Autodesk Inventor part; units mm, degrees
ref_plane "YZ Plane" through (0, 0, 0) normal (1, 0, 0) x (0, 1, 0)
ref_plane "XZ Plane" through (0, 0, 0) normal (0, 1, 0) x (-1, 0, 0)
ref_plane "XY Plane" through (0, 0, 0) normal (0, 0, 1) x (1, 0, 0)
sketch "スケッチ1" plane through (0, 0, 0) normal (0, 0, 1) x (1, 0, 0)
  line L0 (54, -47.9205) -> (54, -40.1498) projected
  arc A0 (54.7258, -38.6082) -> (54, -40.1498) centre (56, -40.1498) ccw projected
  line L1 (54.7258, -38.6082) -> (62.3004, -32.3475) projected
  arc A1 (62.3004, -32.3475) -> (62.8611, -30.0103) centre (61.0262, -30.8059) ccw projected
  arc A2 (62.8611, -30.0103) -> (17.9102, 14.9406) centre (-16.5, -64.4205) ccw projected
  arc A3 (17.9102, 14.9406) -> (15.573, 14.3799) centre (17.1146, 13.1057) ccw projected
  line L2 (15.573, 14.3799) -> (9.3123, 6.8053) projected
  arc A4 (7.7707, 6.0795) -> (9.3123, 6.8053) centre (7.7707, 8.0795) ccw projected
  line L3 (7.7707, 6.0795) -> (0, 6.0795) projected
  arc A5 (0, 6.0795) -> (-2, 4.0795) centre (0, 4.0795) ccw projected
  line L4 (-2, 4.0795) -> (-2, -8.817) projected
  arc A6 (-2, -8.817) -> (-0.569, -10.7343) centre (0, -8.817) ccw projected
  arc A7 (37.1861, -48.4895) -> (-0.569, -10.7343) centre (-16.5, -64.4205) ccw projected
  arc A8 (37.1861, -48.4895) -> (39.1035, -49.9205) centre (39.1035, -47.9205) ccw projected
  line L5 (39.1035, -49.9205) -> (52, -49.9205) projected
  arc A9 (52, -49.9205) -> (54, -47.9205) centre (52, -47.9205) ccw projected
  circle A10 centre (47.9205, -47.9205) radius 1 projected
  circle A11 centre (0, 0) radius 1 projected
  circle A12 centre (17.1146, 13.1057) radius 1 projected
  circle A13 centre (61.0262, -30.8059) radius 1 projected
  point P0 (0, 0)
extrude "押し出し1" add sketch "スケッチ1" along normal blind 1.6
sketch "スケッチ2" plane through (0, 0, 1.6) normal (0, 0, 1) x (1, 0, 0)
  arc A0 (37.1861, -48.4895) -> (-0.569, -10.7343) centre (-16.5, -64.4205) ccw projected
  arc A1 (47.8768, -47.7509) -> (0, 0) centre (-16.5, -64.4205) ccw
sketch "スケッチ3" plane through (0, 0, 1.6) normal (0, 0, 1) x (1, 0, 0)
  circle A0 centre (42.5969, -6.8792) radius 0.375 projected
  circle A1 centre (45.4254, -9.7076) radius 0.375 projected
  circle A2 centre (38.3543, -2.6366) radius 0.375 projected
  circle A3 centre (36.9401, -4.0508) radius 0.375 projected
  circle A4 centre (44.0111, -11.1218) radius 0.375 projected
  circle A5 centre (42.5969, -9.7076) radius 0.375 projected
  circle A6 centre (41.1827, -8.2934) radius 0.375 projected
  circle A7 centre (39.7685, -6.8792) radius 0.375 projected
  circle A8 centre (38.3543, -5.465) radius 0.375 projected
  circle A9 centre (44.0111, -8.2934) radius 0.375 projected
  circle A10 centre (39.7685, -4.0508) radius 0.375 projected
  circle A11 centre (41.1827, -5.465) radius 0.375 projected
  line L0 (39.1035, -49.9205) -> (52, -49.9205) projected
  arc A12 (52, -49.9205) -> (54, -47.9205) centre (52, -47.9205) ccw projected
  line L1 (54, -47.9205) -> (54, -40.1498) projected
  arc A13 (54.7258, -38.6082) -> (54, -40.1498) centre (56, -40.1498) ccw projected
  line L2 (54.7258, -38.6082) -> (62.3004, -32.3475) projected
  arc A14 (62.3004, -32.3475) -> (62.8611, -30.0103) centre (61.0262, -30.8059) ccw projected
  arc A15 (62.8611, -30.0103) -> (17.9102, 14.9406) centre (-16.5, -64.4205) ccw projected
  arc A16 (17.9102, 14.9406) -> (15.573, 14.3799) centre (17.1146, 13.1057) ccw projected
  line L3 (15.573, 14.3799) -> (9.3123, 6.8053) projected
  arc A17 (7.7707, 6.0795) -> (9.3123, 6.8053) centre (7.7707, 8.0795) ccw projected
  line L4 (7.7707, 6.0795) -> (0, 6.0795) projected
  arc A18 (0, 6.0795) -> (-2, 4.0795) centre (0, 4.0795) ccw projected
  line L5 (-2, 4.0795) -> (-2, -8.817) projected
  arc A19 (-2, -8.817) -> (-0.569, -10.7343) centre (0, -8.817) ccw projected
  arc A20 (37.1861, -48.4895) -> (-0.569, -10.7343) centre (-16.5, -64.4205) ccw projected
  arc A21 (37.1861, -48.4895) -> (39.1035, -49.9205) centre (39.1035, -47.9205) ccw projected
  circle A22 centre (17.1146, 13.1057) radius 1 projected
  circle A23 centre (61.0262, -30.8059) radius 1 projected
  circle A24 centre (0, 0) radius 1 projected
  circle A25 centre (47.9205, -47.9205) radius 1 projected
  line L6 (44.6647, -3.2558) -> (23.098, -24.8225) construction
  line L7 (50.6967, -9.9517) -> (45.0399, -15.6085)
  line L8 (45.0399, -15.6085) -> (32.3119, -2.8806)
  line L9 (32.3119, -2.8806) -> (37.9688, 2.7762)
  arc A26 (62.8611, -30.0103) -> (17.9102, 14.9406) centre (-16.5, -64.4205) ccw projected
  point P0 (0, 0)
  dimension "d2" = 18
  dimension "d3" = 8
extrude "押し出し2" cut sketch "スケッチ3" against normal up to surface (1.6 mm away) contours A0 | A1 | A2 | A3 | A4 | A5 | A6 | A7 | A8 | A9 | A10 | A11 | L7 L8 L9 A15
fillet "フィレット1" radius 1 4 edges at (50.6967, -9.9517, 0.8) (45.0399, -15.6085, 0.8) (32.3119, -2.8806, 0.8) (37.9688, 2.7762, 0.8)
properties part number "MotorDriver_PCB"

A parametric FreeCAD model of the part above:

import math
import FreeCAD as App
import Part
import Sketcher

V = App.Vector
Q = App.Units.Quantity


def edges_at(feature, points):
    """Names of the edges that pass closest to the given points."""
    edges = feature.Shape.Edges
    near = lambda p: min(range(len(edges)), key=lambda i: edges[i].distToShape(Part.Vertex(*p))[0])
    return sorted({f"Edge{near(p) + 1}" for p in points})

doc = App.newDocument("Part")
body = doc.addObject("PartDesign::Body", "Body")

# Sketch on XY plane
sketch1 = body.newObject("Sketcher::SketchObject", "Sketch")
sketch1.AttachmentSupport = (doc.getObject("XY_Plane"), [""])
sketch1.MapMode = "FlatFace"
sketch1.addGeometry([
    Part.ArcOfCircle(Part.Circle(V(52, -47.9205, 0), V(0, 0, 1), 2), math.radians(-90), math.radians(0)),  # 0
    Part.LineSegment(V(54, -47.9205, 0), V(54, -40.1498, 0)),  # 1
    Part.ArcOfCircle(Part.Circle(V(56, -40.1498, 0), V(0, 0, 1), 2.000029), math.radians(129.575224), math.radians(180)),  # 2
    Part.LineSegment(V(54.7258, -38.6082, 0), V(62.3004, -32.3475, 0)),  # 3
    Part.ArcOfCircle(Part.Circle(V(61.0262, -30.8059, 0), V(0, 0, 1), 2.000029), math.radians(-50.424776), math.radians(23.441223)),  # 4
    Part.ArcOfCircle(Part.Circle(V(-16.5, -64.4205, 0), V(0, 0, 1), 86.499977), math.radians(23.441085), math.radians(66.558915)),  # 5
    Part.ArcOfCircle(Part.Circle(V(17.1146, 13.1057, 0), V(0, 0, 1), 1.999959), math.radians(66.558777), math.radians(140.424776)),  # 6
    Part.LineSegment(V(15.573, 14.3799, 0), V(9.3123, 6.8053, 0)),  # 7
    Part.ArcOfCircle(Part.Circle(V(7.7707, 8.0795, 0), V(0, 0, 1), 2), math.radians(-90), math.radians(-39.575224)),  # 8
    Part.LineSegment(V(7.7707, 6.0795, 0), V(0, 6.0795, 0)),  # 9
    Part.ArcOfCircle(Part.Circle(V(0, 4.0795, 0), V(0, 0, 1), 2), math.radians(90), math.radians(180)),  # 10
    Part.LineSegment(V(-2, 4.0795, 0), V(-2, -8.817, 0)),  # 11
    Part.ArcOfCircle(Part.Circle(V(0, -8.817, 0), V(0, 0, 1), 2), math.radians(180), math.radians(253.470612)),  # 12
    Part.ArcOfCircle(Part.Circle(V(-16.5, -64.4205, 0), V(0, 0, 1), 55.999947), math.radians(16.527912), math.radians(73.472117)),  # 13
    Part.ArcOfCircle(Part.Circle(V(39.1035, -47.9205, 0), V(0, 0, 1), 2.000046), math.radians(-163.471427), math.radians(-90)),  # 14
    Part.LineSegment(V(39.1035, -49.9205, 0), V(52, -49.9205, 0)),  # 15
    Part.Circle(V(47.9205, -47.9205, 0), V(0, 0, 1), 1),  # 16
    Part.Circle(V(61.0262, -30.8059, 0), V(0, 0, 1), 1),  # 17
    Part.Circle(V(0, 0, 0), V(0, 0, 1), 1),  # 18
    Part.Circle(V(17.1146, 13.1057, 0), V(0, 0, 1), 1),  # 19
], False)
sketch1.addConstraint([
    Sketcher.Constraint("Tangent", 0, 2, 1, 1),
    Sketcher.Constraint("Tangent", 1, 2, 2, 2),
    Sketcher.Constraint("Tangent", 2, 1, 3, 1),
    Sketcher.Constraint("Tangent", 3, 2, 4, 1),
    Sketcher.Constraint("Tangent", 4, 2, 5, 1),
    Sketcher.Constraint("Tangent", 5, 2, 6, 1),
    Sketcher.Constraint("Tangent", 6, 2, 7, 1),
    Sketcher.Constraint("Tangent", 7, 2, 8, 2),
    Sketcher.Constraint("Tangent", 8, 1, 9, 1),
    Sketcher.Constraint("Tangent", 9, 2, 10, 1),
    Sketcher.Constraint("Tangent", 10, 2, 11, 1),
    Sketcher.Constraint("Tangent", 11, 2, 12, 1),
    Sketcher.Constraint("Tangent", 12, 2, 13, 2),
    Sketcher.Constraint("Tangent", 13, 1, 14, 1),
    Sketcher.Constraint("Tangent", 14, 2, 15, 1),
    Sketcher.Constraint("Tangent", 15, 2, 0, 1),
    Sketcher.Constraint("Vertical", 1),
    Sketcher.Constraint("Horizontal", 9),
    Sketcher.Constraint("Vertical", 11),
    Sketcher.Constraint("Horizontal", 15),
    Sketcher.Constraint("Coincident", 18, 3, -1, 1),
    Sketcher.Constraint("Coincident", 13, 3, 5, 3),
    Sketcher.Constraint("Coincident", 17, 3, 4, 3),
    Sketcher.Constraint("Coincident", 19, 3, 6, 3),
    Sketcher.Constraint("Equal", 0, 2),
    Sketcher.Constraint("Equal", 2, 4),
    Sketcher.Constraint("Equal", 4, 6),
    Sketcher.Constraint("Equal", 6, 8),
    Sketcher.Constraint("Equal", 8, 10),
    Sketcher.Constraint("Equal", 10, 12),
    Sketcher.Constraint("Equal", 12, 14),
    Sketcher.Constraint("Equal", 16, 17),
    Sketcher.Constraint("Equal", 17, 18),
    Sketcher.Constraint("Equal", 18, 19),
    Sketcher.Constraint("PointOnObject", 10, 3, -2),
    Sketcher.Constraint("Horizontal", 14, 3, 16, 3),
    Sketcher.Constraint("Equal", 9, 1),
    Sketcher.Constraint("Equal", 15, 11),
    Sketcher.Constraint("Equal", 3, 7),
    Sketcher.Constraint("Diameter", 16, Q("2 mm")),
    Sketcher.Constraint("Radius", 0, Q("2 mm")),
    Sketcher.Constraint("Radius", 13, Q("56 mm")),
    Sketcher.Constraint("Radius", 5, Q("86.5 mm")),
    Sketcher.Constraint("DistanceX", -1, 1, 0, 3, Q("52 mm")),
    Sketcher.Constraint("DistanceY", 0, 3, 8, 3, Q("56 mm")),
    Sketcher.Constraint("DistanceX", 5, 3, -1, 1, Q("16.5 mm")),
    Sketcher.Constraint("Distance", 3, Q("9.827 mm")),
    Sketcher.Constraint("DistanceX", 9, 2, 9, 1, Q("7.7707 mm")),
    Sketcher.Constraint("DistanceY", 4, 3, -1, 1, Q("30.806 mm")),
    Sketcher.Constraint("DistanceX", 14, 3, 16, 3, Q("8.817 mm")),
])
pad1 = body.newObject("PartDesign::Pad", "Pad")
pad1.Profile = sketch1
pad1.Length = 1.6

# Sketch on XY plane
sketch2 = body.newObject("Sketcher::SketchObject", "Sketch001")
sketch2.AttachmentSupport = (doc.getObject("XY_Plane"), [""])
sketch2.MapMode = "FlatFace"
sketch2.AttachmentOffset = App.Placement(V(0, 0, 1.6), App.Rotation())
sketch2.addGeometry([
    Part.LineSegment(V(45.0399, -15.6085, 0), V(50.6967, -9.9517, 0)),
    Part.ArcOfCircle(Part.Circle(V(-16.5, -64.4205, 0), V(0, 0, 1), 86.499977), math.radians(39.02779), math.radians(50.97221)),
    Part.LineSegment(V(37.9688, 2.7762, 0), V(32.3119, -2.8806, 0)),
    Part.LineSegment(V(32.3119, -2.8806, 0), V(45.0399, -15.6085, 0)),
], False)
sketch2.addConstraint([
    Sketcher.Constraint("Coincident", 0, 2, 1, 1),
    Sketcher.Constraint("Coincident", 1, 2, 2, 1),
    Sketcher.Constraint("Coincident", 2, 2, 3, 1),
    Sketcher.Constraint("Coincident", 3, 2, 0, 1),
    Sketcher.Constraint("Parallel", 0, 2),
    Sketcher.Constraint("Perpendicular", 2, 3),
    Sketcher.Constraint("Equal", 0, 2),
    Sketcher.Constraint("Distance", 0, Q("8 mm")),
    Sketcher.Constraint("Distance", 3, Q("18 mm")),
    Sketcher.Constraint("Radius", 1, Q("86.5 mm")),
    Sketcher.Constraint("Angle", 0, Q("45 deg")),
    Sketcher.Constraint("DistanceX", 1, 3, -1, 1, Q("16.5 mm")),
    Sketcher.Constraint("DistanceY", 1, 3, -1, 1, Q("64.4205 mm")),
])
pocket1 = body.newObject("PartDesign::Pocket", "Pocket")
pocket1.Profile = sketch2
pocket1.Length = 1.6
doc.recompute()

fillet = body.newObject("PartDesign::Fillet", "Fillet")
fillet.Base = (pocket1, edges_at(pocket1, [
    (50.697, -9.952, 0.8),
    (45.04, -15.608, 0.8),
    (32.312, -2.881, 0.8),
    (37.969, 2.776, 0.8),
]))
fillet.Radius = 1

doc.recompute()
